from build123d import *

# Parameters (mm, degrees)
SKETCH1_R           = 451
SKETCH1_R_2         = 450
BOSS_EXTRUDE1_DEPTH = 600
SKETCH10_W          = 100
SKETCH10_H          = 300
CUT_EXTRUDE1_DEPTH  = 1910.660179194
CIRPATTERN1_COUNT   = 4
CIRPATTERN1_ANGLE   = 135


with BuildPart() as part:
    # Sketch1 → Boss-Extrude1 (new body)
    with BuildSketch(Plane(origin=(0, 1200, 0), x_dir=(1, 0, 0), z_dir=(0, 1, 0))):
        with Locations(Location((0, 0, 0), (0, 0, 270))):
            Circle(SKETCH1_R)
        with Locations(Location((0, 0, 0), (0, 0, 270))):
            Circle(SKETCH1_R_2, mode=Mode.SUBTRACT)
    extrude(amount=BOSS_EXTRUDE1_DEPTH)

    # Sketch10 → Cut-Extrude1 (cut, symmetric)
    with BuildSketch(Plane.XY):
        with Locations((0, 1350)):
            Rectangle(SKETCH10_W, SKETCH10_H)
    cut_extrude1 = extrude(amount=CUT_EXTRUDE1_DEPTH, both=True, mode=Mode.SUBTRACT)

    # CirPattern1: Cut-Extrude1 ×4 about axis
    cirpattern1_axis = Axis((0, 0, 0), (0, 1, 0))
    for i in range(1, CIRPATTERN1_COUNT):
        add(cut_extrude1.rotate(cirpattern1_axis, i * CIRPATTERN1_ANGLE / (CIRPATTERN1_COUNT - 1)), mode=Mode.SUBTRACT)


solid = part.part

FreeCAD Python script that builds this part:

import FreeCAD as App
import Part
import Sketcher


def add_polygon(sketch, points):
    """Adds a closed chain of lines whose ends are joined by coincident constraints."""
    first, n = sketch.GeometryCount, len(points)
    for a, b in zip(points, points[1:] + points[:1]):
        sketch.addGeometry(Part.LineSegment(App.Vector(*a, 0), App.Vector(*b, 0)), False)
    for i in range(n):
        sketch.addConstraint(Sketcher.Constraint("Coincident", first + i, 2, first + (i + 1) % n, 1))

doc = App.newDocument("Part")
body = doc.addObject("PartDesign::Body", "Body")

sketch1 = body.newObject("Sketcher::SketchObject", "Sketch")
sketch1.AttachmentSupport = (doc.getObject("XZ_Plane"), [""])
sketch1.MapMode = "FlatFace"
sketch1.AttachmentOffset = App.Placement(App.Vector(0, 0, -1200), App.Rotation())
sketch1.addGeometry(Part.Circle(App.Vector(0, 0, 0), App.Vector(0, 0, 1), 451), False)
sketch1.addGeometry(Part.Circle(App.Vector(0, 0, 0), App.Vector(0, 0, 1), 450), False)
sketch1.addConstraint(Sketcher.Constraint("Coincident", 0, 3, -1, 1))
sketch1.addConstraint(Sketcher.Constraint("Coincident", 1, 3, -1, 1))
sketch1.addConstraint(Sketcher.Constraint("Diameter", 0, 902.0))
sketch1.addConstraint(Sketcher.Constraint("Diameter", 1, 900.0))
pad1 = body.newObject("PartDesign::Pad", "Pad")
pad1.Profile = sketch1
pad1.Length = 600
pad1.Reversed = True

sketch2 = body.newObject("Sketcher::SketchObject", "Sketch001")
sketch2.AttachmentSupport = (doc.getObject("XY_Plane"), [""])
sketch2.MapMode = "FlatFace"
add_polygon(sketch2, [(-50, 1500), (-50, 1200), (50, 1200), (50, 1500)])
sketch2.addConstraint(Sketcher.Constraint("Vertical", 0))
sketch2.addConstraint(Sketcher.Constraint("Horizontal", 1))
sketch2.addConstraint(Sketcher.Constraint("Vertical", 2))
sketch2.addConstraint(Sketcher.Constraint("Horizontal", 3))
sketch2.addConstraint(Sketcher.Constraint("DistanceX", 1, 1, 1, 2, 100.0))
sketch2.addConstraint(Sketcher.Constraint("DistanceY", 0, 2, 0, 1, 300.0))
sketch2.addConstraint(Sketcher.Constraint("DistanceX", 0, 2, -1, 1, 50.0))
sketch2.addConstraint(Sketcher.Constraint("DistanceY", -1, 1, 0, 2, 1200.0))
pocket1 = body.newObject("PartDesign::Pocket", "Pocket")
pocket1.Profile = sketch2
pocket1.Length = 3821.320358
pocket1.Midplane = True
doc.recompute()

polarpattern = body.newObject("PartDesign::PolarPattern", "PolarPattern")
polarpattern.Originals = [pocket1]
polarpattern.Axis = (doc.getObject("Y_Axis"), [""])
polarpattern.Angle = 135
polarpattern.Occurrences = 4
body.Tip = polarpattern

doc.recompute()
